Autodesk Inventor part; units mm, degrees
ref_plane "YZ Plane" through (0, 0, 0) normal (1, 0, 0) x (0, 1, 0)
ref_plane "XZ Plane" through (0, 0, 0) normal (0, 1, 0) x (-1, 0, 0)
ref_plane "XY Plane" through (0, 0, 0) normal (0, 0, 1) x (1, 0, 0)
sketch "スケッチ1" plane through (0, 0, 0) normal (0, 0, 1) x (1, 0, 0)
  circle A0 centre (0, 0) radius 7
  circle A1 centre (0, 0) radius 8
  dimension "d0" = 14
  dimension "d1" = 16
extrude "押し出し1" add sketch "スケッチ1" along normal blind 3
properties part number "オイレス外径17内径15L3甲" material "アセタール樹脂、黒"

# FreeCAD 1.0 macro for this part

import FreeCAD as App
import Part
import Sketcher

V = App.Vector
Q = App.Units.Quantity

doc = App.newDocument("Part")
body = doc.addObject("PartDesign::Body", "Body")

# Sketch on XY plane
sketch1 = body.newObject("Sketcher::SketchObject", "Sketch")
sketch1.AttachmentSupport = (doc.getObject("XY_Plane"), [""])
sketch1.MapMode = "FlatFace"
sketch1.addGeometry(Part.Circle(V(0, 0, 0), V(0, 0, 1), 8), False)
sketch1.addGeometry(Part.Circle(V(0, 0, 0), V(0, 0, 1), 7), False)
sketch1.addConstraint(Sketcher.Constraint("Coincident", 0, 3, -1, 1))
sketch1.addConstraint(Sketcher.Constraint("Coincident", 1, 3, -1, 1))
sketch1.addConstraint(Sketcher.Constraint("Diameter", 0, Q("16 mm")))
sketch1.addConstraint(Sketcher.Constraint("Diameter", 1, Q("14 mm")))
pad1 = body.newObject("PartDesign::Pad", "Pad")
pad1.Profile = sketch1
pad1.Length = 3

doc.recompute()
